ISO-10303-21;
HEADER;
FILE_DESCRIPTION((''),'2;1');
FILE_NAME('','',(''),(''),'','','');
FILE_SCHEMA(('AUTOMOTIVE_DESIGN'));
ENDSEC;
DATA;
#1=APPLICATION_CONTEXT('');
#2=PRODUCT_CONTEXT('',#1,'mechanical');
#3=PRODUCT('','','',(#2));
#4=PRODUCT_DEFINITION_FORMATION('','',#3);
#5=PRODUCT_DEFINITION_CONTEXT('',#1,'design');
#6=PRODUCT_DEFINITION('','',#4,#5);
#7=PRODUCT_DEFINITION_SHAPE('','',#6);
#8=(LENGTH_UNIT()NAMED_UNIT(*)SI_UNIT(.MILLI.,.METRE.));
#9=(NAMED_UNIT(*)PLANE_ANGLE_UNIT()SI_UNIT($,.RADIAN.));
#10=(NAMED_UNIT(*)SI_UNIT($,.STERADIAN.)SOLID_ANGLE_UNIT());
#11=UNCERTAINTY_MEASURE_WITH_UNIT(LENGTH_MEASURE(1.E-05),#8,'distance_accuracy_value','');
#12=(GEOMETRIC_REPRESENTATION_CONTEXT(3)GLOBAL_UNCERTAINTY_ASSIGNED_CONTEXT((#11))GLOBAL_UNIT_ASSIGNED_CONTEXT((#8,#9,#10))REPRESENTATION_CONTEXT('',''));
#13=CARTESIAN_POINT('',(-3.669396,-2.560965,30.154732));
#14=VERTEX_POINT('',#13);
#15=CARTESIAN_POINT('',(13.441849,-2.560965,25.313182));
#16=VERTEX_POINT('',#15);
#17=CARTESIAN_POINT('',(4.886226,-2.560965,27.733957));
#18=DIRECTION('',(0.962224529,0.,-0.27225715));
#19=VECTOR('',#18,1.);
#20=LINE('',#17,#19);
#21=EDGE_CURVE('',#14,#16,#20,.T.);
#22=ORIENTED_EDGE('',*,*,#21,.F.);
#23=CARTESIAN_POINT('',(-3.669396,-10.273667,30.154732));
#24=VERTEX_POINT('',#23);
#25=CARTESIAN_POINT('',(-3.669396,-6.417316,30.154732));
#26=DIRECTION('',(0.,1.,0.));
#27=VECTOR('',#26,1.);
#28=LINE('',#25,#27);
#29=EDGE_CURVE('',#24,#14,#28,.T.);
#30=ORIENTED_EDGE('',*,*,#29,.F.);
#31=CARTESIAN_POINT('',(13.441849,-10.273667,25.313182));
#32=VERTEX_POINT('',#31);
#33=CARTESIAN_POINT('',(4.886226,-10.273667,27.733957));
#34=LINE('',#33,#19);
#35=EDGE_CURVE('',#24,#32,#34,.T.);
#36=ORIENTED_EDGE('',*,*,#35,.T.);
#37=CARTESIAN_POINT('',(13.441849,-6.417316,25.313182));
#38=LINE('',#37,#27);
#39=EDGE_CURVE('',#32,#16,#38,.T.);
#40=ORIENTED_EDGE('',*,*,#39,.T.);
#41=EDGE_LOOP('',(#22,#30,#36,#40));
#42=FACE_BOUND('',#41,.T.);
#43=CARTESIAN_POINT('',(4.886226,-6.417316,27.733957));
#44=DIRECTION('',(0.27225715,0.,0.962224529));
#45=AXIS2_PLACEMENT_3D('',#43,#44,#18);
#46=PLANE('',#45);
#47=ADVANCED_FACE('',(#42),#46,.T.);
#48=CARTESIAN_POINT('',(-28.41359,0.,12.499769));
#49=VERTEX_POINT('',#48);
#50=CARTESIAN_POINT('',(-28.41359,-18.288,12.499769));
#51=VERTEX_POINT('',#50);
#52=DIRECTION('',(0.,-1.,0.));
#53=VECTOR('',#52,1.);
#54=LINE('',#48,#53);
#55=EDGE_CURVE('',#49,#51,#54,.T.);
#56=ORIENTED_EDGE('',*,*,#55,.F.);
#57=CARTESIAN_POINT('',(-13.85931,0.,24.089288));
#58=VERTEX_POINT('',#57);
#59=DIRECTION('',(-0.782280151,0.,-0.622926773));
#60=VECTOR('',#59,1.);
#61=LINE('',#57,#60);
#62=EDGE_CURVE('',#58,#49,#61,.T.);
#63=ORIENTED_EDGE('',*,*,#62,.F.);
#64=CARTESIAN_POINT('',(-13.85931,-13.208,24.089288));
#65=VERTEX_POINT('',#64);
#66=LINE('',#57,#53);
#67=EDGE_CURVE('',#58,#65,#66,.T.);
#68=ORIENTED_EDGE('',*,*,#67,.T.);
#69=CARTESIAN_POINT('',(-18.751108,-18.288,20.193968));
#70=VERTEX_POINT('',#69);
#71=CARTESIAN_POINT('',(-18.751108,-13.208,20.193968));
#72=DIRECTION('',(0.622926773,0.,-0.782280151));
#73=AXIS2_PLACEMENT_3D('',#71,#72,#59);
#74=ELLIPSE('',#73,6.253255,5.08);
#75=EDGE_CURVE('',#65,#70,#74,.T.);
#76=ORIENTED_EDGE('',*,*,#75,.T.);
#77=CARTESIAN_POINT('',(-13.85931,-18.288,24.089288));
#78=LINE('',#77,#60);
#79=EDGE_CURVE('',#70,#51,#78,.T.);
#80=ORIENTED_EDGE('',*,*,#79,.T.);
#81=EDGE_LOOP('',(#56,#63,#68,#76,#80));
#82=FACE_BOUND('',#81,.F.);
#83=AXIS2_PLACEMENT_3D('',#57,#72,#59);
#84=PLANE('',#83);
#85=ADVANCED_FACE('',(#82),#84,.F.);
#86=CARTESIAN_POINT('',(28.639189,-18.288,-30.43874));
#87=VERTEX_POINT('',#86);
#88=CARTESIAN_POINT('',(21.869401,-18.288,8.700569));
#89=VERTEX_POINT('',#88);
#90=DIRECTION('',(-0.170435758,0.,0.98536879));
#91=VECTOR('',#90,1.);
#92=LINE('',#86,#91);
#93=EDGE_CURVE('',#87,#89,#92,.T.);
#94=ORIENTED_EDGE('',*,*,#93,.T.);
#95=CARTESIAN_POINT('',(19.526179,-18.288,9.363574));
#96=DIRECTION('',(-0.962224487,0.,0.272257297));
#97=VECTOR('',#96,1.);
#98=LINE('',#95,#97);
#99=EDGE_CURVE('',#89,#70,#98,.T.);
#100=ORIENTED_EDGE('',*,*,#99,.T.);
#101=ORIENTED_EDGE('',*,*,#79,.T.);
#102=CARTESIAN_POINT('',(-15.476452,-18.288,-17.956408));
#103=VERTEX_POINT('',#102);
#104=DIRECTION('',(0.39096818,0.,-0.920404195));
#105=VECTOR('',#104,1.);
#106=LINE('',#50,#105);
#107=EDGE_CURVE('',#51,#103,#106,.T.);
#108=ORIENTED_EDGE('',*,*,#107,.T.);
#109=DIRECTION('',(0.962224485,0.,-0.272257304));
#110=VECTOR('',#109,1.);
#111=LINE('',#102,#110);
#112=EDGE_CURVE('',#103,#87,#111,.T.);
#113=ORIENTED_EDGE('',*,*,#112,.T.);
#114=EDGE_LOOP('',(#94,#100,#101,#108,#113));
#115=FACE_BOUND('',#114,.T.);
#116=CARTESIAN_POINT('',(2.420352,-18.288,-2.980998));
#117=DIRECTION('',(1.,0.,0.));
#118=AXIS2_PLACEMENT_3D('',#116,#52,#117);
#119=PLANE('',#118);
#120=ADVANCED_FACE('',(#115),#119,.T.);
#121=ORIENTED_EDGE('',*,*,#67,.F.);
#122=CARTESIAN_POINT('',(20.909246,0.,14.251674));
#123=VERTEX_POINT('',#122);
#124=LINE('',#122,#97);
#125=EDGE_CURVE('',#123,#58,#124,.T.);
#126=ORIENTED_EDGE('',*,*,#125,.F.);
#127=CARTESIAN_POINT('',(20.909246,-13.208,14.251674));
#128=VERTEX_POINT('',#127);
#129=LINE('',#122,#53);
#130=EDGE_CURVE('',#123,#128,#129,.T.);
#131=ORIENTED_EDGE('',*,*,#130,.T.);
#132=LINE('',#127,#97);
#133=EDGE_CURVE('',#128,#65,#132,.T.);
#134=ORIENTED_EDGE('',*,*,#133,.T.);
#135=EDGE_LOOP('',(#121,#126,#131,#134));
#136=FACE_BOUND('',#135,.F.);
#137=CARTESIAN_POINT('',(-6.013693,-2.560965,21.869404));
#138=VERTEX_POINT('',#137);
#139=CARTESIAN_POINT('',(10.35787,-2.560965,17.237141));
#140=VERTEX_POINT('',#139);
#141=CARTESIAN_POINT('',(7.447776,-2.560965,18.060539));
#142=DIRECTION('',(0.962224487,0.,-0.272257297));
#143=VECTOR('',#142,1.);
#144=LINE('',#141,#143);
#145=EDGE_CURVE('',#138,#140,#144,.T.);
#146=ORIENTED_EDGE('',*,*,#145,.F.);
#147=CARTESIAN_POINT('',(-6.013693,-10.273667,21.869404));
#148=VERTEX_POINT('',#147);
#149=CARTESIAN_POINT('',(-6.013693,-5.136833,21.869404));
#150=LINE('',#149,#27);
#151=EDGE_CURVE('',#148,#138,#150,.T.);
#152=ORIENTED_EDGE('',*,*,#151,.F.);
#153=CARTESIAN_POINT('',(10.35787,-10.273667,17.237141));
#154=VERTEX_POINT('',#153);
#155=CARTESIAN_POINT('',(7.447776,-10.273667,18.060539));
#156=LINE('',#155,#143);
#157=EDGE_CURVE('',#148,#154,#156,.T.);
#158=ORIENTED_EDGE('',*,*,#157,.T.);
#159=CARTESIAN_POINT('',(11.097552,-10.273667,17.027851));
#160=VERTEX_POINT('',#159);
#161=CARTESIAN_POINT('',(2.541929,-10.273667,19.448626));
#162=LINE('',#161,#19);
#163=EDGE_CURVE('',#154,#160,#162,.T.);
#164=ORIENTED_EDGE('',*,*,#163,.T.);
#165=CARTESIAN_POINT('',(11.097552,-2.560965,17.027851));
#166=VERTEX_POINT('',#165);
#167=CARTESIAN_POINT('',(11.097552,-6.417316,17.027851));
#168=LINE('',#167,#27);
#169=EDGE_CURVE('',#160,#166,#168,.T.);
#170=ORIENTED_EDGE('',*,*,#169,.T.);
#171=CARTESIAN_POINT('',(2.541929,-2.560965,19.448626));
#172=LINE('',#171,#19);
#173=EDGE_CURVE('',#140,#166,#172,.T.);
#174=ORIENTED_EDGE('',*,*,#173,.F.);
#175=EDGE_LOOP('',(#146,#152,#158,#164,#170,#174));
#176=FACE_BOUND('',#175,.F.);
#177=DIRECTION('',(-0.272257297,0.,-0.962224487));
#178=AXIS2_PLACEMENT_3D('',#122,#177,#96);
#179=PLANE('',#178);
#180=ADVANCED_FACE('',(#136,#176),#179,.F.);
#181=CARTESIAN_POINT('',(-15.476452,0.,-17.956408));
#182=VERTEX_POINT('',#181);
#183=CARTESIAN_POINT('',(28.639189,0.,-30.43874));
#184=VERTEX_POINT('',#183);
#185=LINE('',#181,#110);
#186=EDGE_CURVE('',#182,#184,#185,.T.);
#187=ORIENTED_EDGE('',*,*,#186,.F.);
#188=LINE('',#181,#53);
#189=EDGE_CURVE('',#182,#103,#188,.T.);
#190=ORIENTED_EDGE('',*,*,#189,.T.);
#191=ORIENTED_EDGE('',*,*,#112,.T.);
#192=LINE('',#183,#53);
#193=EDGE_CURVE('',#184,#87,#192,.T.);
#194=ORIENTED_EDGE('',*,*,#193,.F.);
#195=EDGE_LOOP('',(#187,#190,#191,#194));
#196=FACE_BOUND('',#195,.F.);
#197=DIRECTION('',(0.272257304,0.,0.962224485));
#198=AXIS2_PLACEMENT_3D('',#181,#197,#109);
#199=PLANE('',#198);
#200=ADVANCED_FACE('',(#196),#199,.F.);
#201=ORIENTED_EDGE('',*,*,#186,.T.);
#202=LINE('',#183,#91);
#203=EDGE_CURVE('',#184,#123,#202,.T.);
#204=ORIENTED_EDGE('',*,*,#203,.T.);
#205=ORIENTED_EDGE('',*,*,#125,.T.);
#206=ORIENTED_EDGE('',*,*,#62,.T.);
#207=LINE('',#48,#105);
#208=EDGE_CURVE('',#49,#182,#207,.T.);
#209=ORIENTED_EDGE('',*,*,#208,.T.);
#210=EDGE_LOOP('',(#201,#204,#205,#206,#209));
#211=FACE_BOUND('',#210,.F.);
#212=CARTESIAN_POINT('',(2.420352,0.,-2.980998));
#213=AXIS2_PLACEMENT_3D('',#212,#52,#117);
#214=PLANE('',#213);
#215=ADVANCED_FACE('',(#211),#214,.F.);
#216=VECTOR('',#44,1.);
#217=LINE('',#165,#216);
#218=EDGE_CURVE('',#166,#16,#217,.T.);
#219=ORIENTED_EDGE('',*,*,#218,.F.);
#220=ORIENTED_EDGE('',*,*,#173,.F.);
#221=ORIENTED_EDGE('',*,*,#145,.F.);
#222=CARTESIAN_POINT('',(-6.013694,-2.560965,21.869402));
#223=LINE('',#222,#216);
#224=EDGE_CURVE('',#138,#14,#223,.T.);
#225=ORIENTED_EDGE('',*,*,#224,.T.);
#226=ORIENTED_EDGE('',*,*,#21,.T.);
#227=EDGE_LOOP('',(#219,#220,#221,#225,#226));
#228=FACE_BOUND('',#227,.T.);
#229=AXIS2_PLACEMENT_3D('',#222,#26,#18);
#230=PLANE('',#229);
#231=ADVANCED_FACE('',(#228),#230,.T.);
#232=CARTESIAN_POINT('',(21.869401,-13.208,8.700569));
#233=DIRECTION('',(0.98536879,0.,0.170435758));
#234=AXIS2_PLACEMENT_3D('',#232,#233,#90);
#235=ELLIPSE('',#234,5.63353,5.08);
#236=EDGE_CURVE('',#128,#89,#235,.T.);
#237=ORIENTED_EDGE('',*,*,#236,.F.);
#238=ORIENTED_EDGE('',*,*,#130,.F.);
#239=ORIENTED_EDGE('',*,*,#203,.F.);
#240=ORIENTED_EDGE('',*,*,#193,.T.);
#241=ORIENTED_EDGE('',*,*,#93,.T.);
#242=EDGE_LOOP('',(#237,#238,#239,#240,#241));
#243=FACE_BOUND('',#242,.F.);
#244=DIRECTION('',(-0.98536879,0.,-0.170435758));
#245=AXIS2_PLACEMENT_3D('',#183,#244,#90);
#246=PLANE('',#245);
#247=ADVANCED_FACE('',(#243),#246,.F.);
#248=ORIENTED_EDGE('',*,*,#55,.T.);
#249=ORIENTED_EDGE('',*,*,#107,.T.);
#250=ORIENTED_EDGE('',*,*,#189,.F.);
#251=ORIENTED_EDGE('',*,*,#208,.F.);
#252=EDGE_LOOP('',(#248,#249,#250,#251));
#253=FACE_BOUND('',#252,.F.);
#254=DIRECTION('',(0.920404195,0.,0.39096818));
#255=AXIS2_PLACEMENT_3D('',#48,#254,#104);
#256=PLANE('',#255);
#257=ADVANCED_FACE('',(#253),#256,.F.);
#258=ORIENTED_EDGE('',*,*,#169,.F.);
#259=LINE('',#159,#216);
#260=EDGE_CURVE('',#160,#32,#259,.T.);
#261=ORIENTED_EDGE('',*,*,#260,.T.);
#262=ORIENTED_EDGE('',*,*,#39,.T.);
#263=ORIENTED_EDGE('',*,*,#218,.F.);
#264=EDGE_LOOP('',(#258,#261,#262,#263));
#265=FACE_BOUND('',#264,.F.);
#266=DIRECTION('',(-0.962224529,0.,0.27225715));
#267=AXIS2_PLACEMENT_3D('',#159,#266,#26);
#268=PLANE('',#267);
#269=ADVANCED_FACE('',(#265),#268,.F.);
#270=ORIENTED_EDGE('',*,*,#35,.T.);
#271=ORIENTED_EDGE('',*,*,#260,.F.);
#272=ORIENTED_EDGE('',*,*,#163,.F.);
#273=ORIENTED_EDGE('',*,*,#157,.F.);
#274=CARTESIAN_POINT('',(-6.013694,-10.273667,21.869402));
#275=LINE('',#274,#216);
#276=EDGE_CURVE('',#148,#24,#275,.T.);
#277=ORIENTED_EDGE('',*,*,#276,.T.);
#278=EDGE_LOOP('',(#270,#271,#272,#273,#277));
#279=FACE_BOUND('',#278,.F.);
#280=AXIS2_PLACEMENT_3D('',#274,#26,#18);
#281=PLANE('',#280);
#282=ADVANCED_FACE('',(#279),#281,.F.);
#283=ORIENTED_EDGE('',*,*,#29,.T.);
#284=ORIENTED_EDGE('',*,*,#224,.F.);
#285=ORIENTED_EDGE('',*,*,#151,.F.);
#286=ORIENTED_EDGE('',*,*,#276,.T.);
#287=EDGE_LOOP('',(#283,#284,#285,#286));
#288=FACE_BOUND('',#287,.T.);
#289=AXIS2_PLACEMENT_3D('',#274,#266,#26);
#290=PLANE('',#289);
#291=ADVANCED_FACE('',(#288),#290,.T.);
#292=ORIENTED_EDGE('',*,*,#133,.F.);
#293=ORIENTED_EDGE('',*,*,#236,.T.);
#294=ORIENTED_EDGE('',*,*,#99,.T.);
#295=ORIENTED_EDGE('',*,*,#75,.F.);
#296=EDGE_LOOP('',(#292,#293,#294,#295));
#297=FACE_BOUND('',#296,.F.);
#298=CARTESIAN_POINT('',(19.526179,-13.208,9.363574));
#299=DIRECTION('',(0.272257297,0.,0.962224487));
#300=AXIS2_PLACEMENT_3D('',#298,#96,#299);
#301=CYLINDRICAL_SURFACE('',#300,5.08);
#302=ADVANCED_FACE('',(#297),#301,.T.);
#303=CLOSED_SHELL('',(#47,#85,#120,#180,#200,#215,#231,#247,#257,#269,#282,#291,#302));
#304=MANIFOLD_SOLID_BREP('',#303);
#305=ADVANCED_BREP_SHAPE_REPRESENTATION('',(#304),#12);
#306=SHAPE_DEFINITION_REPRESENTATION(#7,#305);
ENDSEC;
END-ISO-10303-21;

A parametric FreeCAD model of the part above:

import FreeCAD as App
import Part
import Sketcher
from FreeCAD import Vector
Q = App.Units.Quantity


def edges_at(feature, points):
    """Names of the edges that pass closest to the given points."""
    edges = feature.Shape.Edges
    near = lambda p: min(range(len(edges)), key=lambda i: edges[i].distToShape(Part.Vertex(*p))[0])
    return sorted({f"Edge{near(p) + 1}" for p in points})

doc = App.newDocument("Part")
body = doc.addObject("PartDesign::Body", "Body")

# Sketch on XZ plane
sketch1 = doc.addObject("Sketcher::SketchObject", "Sketch")
body.addObject(sketch1)
sketch1.AttachmentSupport = (doc.XZ_Plane, [""])
sketch1.MapMode = "FlatFace"
sketch1.addGeometry(Part.LineSegment(Vector(-14, 24, 0), Vector(-28, 12, 0)), False)
sketch1.addGeometry(Part.LineSegment(Vector(-28, 12, 0), Vector(-15, -18, 0)), False)
sketch1.addGeometry(Part.LineSegment(Vector(-15, -18, 0), Vector(29, -30, 0)), False)
sketch1.addGeometry(Part.LineSegment(Vector(29, -30, 0), Vector(21, 14, 0)), False)
sketch1.addGeometry(Part.LineSegment(Vector(21, 14, 0), Vector(-14, 24, 0)), False)
sketch1.addConstraint(Sketcher.Constraint("Coincident", 0, 2, 1, 1))
sketch1.addConstraint(Sketcher.Constraint("Coincident", 1, 2, 2, 1))
sketch1.addConstraint(Sketcher.Constraint("Coincident", 2, 2, 3, 1))
sketch1.addConstraint(Sketcher.Constraint("Coincident", 3, 2, 4, 1))
sketch1.addConstraint(Sketcher.Constraint("Coincident", 4, 2, 0, 1))
sketch1.addConstraint(Sketcher.Constraint("Parallel", 2, 4))
sketch1.addConstraint(Sketcher.Constraint("DistanceX", 4, 2, 2, 2, Q("42.498499 mm")))
sketch1.addConstraint(Sketcher.Constraint("Distance", 4, Q("36.133518 mm")))
sketch1.addConstraint(Sketcher.Constraint("DistanceX", 0, 2, -1, 1, Q("28.41359 mm")))
sketch1.addConstraint(Sketcher.Constraint("DistanceY", -1, 1, 0, 2, Q("12.499769 mm")))
sketch1.addConstraint(Sketcher.Constraint("DistanceX", -1, 1, 2, 2, Q("28.639189 mm")))
sketch1.addConstraint(Sketcher.Constraint("DistanceY", 2, 2, -1, 1, Q("30.43874 mm")))
sketch1.addConstraint(Sketcher.Constraint("DistanceY", -1, 1, 4, 2, Q("24.089288 mm")))
sketch1.addConstraint(Sketcher.Constraint("DistanceX", 1, 2, 2, 2, Q("44.115641 mm")))
sketch1.addConstraint(Sketcher.Constraint("DistanceY", 1, 2, 3, 2, Q("32.208082 mm")))
pad1 = doc.addObject("PartDesign::Pad", "Pad")
body.addObject(pad1)
pad1.Profile = sketch1
pad1.Length = Q("0.72 in")

# Sketch on an angled plane
sketch2 = doc.addObject("Sketcher::SketchObject", "Sketch001")
body.addObject(sketch2)
sketch2.Placement = App.Placement(Vector(5.283426, 0, 18.672932), App.Rotation(Vector(0.962224529, 0, -0.27225715), Vector(0, 1, 0), Vector(0.27225715, 0, 0.962224529), "ZXY"))
sketch2.addGeometry(Part.LineSegment(Vector(-12, -3, 0), Vector(-12, -10, 0)), False)
sketch2.addGeometry(Part.LineSegment(Vector(-12, -10, 0), Vector(6, -10, 0)), False)
sketch2.addGeometry(Part.LineSegment(Vector(6, -10, 0), Vector(6, -3, 0)), False)
sketch2.addGeometry(Part.LineSegment(Vector(6, -3, 0), Vector(-12, -3, 0)), False)
sketch2.addConstraint(Sketcher.Constraint("Coincident", 0, 2, 1, 1))
sketch2.addConstraint(Sketcher.Constraint("Coincident", 1, 2, 2, 1))
sketch2.addConstraint(Sketcher.Constraint("Coincident", 2, 2, 3, 1))
sketch2.addConstraint(Sketcher.Constraint("Coincident", 3, 2, 0, 1))
sketch2.addConstraint(Sketcher.Constraint("Vertical", 0))
sketch2.addConstraint(Sketcher.Constraint("Horizontal", 1))
sketch2.addConstraint(Sketcher.Constraint("Vertical", 2))
sketch2.addConstraint(Sketcher.Constraint("Horizontal", 3))
sketch2.addConstraint(Sketcher.Constraint("DistanceY", 0, 2, 0, 1, Q("7.712702 mm")))
sketch2.addConstraint(Sketcher.Constraint("DistanceX", 1, 1, 1, 2, Q("17.783007 mm")))
sketch2.addConstraint(Sketcher.Constraint("DistanceX", -1, 1, 1, 2, Q("6.04238 mm")))
sketch2.addConstraint(Sketcher.Constraint("DistanceY", 0, 2, -1, 1, Q("10.273667 mm")))
pad2 = doc.addObject("PartDesign::Pad", "Pad001")
body.addObject(pad2)
pad2.Profile = sketch2
pad2.Length = Q("0.339 in")
doc.recompute()

fillet = doc.addObject("PartDesign::Fillet", "Fillet")
body.addObject(fillet)
fillet.Base = (pad2, edges_at(pad2, [(3.525, -18.288, 19.17)]))
fillet.Radius = Q("0.2 in")

doc.recompute()
